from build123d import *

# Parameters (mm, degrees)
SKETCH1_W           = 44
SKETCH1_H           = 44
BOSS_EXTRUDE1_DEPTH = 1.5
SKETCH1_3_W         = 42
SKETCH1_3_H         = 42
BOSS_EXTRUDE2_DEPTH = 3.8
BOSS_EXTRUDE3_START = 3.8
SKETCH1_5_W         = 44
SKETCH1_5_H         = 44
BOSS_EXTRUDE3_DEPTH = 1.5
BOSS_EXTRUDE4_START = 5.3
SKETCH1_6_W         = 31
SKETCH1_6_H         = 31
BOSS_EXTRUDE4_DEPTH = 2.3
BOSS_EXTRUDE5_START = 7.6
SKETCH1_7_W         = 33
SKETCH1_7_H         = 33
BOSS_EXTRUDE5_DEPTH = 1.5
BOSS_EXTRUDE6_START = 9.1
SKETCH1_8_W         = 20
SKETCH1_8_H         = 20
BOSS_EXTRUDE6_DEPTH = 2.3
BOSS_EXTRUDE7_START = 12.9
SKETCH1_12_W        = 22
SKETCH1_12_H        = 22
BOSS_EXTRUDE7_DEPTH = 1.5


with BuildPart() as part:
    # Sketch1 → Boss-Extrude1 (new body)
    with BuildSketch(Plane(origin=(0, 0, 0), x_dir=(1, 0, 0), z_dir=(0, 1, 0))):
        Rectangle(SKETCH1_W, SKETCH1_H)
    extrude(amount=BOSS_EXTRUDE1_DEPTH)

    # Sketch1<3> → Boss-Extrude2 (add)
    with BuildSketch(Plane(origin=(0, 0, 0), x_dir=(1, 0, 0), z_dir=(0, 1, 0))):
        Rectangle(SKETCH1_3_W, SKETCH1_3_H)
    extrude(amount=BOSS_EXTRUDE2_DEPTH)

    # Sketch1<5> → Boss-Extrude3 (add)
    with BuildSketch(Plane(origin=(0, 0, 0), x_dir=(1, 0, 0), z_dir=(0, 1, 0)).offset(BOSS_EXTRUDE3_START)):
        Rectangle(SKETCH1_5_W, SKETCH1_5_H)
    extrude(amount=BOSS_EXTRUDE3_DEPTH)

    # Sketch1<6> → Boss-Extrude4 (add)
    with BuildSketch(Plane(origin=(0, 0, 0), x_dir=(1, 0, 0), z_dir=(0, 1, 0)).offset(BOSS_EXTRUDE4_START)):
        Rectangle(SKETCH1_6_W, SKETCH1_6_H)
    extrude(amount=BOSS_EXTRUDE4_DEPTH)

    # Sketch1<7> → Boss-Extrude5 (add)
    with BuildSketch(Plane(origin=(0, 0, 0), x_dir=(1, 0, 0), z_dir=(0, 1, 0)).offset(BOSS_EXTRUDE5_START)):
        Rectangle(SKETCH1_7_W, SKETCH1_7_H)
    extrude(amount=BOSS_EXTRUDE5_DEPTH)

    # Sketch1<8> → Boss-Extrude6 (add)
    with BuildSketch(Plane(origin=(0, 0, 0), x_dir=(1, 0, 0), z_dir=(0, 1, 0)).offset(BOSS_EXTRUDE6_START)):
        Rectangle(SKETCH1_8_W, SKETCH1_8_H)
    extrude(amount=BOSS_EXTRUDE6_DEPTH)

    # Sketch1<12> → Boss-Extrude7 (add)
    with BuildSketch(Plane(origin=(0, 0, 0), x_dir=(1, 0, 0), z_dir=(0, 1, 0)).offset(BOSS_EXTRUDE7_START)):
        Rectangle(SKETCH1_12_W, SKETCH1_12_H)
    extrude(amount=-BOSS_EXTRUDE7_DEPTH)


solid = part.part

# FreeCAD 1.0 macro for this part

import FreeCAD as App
import Part
import Sketcher

V = App.Vector

doc = App.newDocument("Part")
params = doc.addObject("Spreadsheet::Sheet", "Params")
for row, (alias, value) in enumerate([
    ("sketch1_width", "44 mm"),
    ("pad1_length", "1.5 mm"),
    ("sketch2_width", "42 mm"),
    ("pad2_length", "3.8 mm"),
    ("sketch3_width", "44 mm"),
    ("pad3_length", "1.5 mm"),
    ("sketch4_width", "31 mm"),
    ("pad4_length", "2.3 mm"),
    ("sketch5_width", "33 mm"),
    ("pad5_length", "1.5 mm"),
    ("sketch6_width", "20 mm"),
    ("pad6_length", "2.3 mm"),
    ("sketch7_width", "22 mm"),
    ("pad7_length", "1.5 mm"),
], start=1):
    params.set(f"A{row}", alias)
    params.set(f"B{row}", "=" + value)
    params.setAlias(f"B{row}", alias)

body = doc.addObject("PartDesign::Body", "Body")

# Sketch on XZ plane
sketch1 = body.newObject("Sketcher::SketchObject", "Sketch")
sketch1.AttachmentSupport = (doc.getObject("XZ_Plane"), [""])
sketch1.MapMode = "FlatFace"
sketch1.addGeometry([
    Part.LineSegment(V(-22, -22, 0), V(-22, 22, 0)),
    Part.LineSegment(V(-22, 22, 0), V(22, 22, 0)),
    Part.LineSegment(V(22, 22, 0), V(22, -22, 0)),
    Part.LineSegment(V(22, -22, 0), V(-22, -22, 0)),
], False)
sketch1.addConstraint([
    Sketcher.Constraint("Coincident", 0, 2, 1, 1),
    Sketcher.Constraint("Coincident", 1, 2, 2, 1),
    Sketcher.Constraint("Coincident", 2, 2, 3, 1),
    Sketcher.Constraint("Coincident", 3, 2, 0, 1),
    Sketcher.Constraint("Vertical", 0),
    Sketcher.Constraint("Horizontal", 1),
    Sketcher.Constraint("Vertical", 2),
    Sketcher.Constraint("Horizontal", 3),
    Sketcher.Constraint("Symmetric", 0, 2, 2, 2, -1, 1),
    Sketcher.Constraint("Equal", 3, 0),
    Sketcher.Constraint("DistanceX", 1, 1, 1, 2, 44.0),
])
sketch1.setExpression("Constraints[10]", "Params.sketch1_width")
pad1 = body.newObject("PartDesign::Pad", "Pad")
pad1.Profile = sketch1
pad1.setExpression("Length", "Params.pad1_length")
pad1.Reversed = True

# Sketch on XZ plane
sketch2 = body.newObject("Sketcher::SketchObject", "Sketch001")
sketch2.AttachmentSupport = (doc.getObject("XZ_Plane"), [""])
sketch2.MapMode = "FlatFace"
sketch2.addGeometry([
    Part.LineSegment(V(-21, -21, 0), V(-21, 21, 0)),
    Part.LineSegment(V(-21, 21, 0), V(21, 21, 0)),
    Part.LineSegment(V(21, 21, 0), V(21, -21, 0)),
    Part.LineSegment(V(21, -21, 0), V(-21, -21, 0)),
], False)
sketch2.addConstraint([
    Sketcher.Constraint("Coincident", 0, 2, 1, 1),
    Sketcher.Constraint("Coincident", 1, 2, 2, 1),
    Sketcher.Constraint("Coincident", 2, 2, 3, 1),
    Sketcher.Constraint("Coincident", 3, 2, 0, 1),
    Sketcher.Constraint("Vertical", 0),
    Sketcher.Constraint("Horizontal", 1),
    Sketcher.Constraint("Vertical", 2),
    Sketcher.Constraint("Horizontal", 3),
    Sketcher.Constraint("Symmetric", 0, 2, 2, 2, -1, 1),
    Sketcher.Constraint("Equal", 3, 0),
    Sketcher.Constraint("DistanceX", 1, 1, 1, 2, 42.0),
])
sketch2.setExpression("Constraints[10]", "Params.sketch2_width")
pad2 = body.newObject("PartDesign::Pad", "Pad001")
pad2.Profile = sketch2
pad2.setExpression("Length", "Params.pad2_length")
pad2.Reversed = True

# Sketch on XZ plane
sketch3 = body.newObject("Sketcher::SketchObject", "Sketch002")
sketch3.AttachmentSupport = (doc.getObject("XZ_Plane"), [""])
sketch3.MapMode = "FlatFace"
sketch3.AttachmentOffset = App.Placement(V(0, 0, -3.8), App.Rotation())
sketch3.addGeometry([
    Part.LineSegment(V(-22, -22, 0), V(-22, 22, 0)),
    Part.LineSegment(V(-22, 22, 0), V(22, 22, 0)),
    Part.LineSegment(V(22, 22, 0), V(22, -22, 0)),
    Part.LineSegment(V(22, -22, 0), V(-22, -22, 0)),
], False)
sketch3.addConstraint([
    Sketcher.Constraint("Coincident", 0, 2, 1, 1),
    Sketcher.Constraint("Coincident", 1, 2, 2, 1),
    Sketcher.Constraint("Coincident", 2, 2, 3, 1),
    Sketcher.Constraint("Coincident", 3, 2, 0, 1),
    Sketcher.Constraint("Vertical", 0),
    Sketcher.Constraint("Horizontal", 1),
    Sketcher.Constraint("Vertical", 2),
    Sketcher.Constraint("Horizontal", 3),
    Sketcher.Constraint("Symmetric", 0, 2, 2, 2, -1, 1),
    Sketcher.Constraint("Equal", 3, 0),
    Sketcher.Constraint("DistanceX", 1, 1, 1, 2, 44.0),
])
sketch3.setExpression("Constraints[10]", "Params.sketch3_width")
pad3 = body.newObject("PartDesign::Pad", "Pad002")
pad3.Profile = sketch3
pad3.setExpression("Length", "Params.pad3_length")
pad3.Reversed = True

# Sketch on XZ plane
sketch4 = body.newObject("Sketcher::SketchObject", "Sketch003")
sketch4.AttachmentSupport = (doc.getObject("XZ_Plane"), [""])
sketch4.MapMode = "FlatFace"
sketch4.AttachmentOffset = App.Placement(V(0, 0, -5.3), App.Rotation())
sketch4.addGeometry([
    Part.LineSegment(V(-16, -16, 0), V(-16, 16, 0)),
    Part.LineSegment(V(-16, 16, 0), V(16, 16, 0)),
    Part.LineSegment(V(16, 16, 0), V(16, -16, 0)),
    Part.LineSegment(V(16, -16, 0), V(-16, -16, 0)),
], False)
sketch4.addConstraint([
    Sketcher.Constraint("Coincident", 0, 2, 1, 1),
    Sketcher.Constraint("Coincident", 1, 2, 2, 1),
    Sketcher.Constraint("Coincident", 2, 2, 3, 1),
    Sketcher.Constraint("Coincident", 3, 2, 0, 1),
    Sketcher.Constraint("Vertical", 0),
    Sketcher.Constraint("Horizontal", 1),
    Sketcher.Constraint("Vertical", 2),
    Sketcher.Constraint("Horizontal", 3),
    Sketcher.Constraint("Symmetric", 0, 2, 2, 2, -1, 1),
    Sketcher.Constraint("Equal", 3, 0),
    Sketcher.Constraint("DistanceX", 1, 1, 1, 2, 31.0),
])
sketch4.setExpression("Constraints[10]", "Params.sketch4_width")
pad4 = body.newObject("PartDesign::Pad", "Pad003")
pad4.Profile = sketch4
pad4.setExpression("Length", "Params.pad4_length")
pad4.Reversed = True

# Sketch on XZ plane
sketch5 = body.newObject("Sketcher::SketchObject", "Sketch004")
sketch5.AttachmentSupport = (doc.getObject("XZ_Plane"), [""])
sketch5.MapMode = "FlatFace"
sketch5.AttachmentOffset = App.Placement(V(0, 0, -7.6), App.Rotation())
sketch5.addGeometry([
    Part.LineSegment(V(-16, -16, 0), V(-16, 16, 0)),
    Part.LineSegment(V(-16, 16, 0), V(16, 16, 0)),
    Part.LineSegment(V(16, 16, 0), V(16, -16, 0)),
    Part.LineSegment(V(16, -16, 0), V(-16, -16, 0)),
], False)
sketch5.addConstraint([
    Sketcher.Constraint("Coincident", 0, 2, 1, 1),
    Sketcher.Constraint("Coincident", 1, 2, 2, 1),
    Sketcher.Constraint("Coincident", 2, 2, 3, 1),
    Sketcher.Constraint("Coincident", 3, 2, 0, 1),
    Sketcher.Constraint("Vertical", 0),
    Sketcher.Constraint("Horizontal", 1),
    Sketcher.Constraint("Vertical", 2),
    Sketcher.Constraint("Horizontal", 3),
    Sketcher.Constraint("Symmetric", 0, 2, 2, 2, -1, 1),
    Sketcher.Constraint("Equal", 3, 0),
    Sketcher.Constraint("DistanceX", 1, 1, 1, 2, 33.0),
])
sketch5.setExpression("Constraints[10]", "Params.sketch5_width")
pad5 = body.newObject("PartDesign::Pad", "Pad004")
pad5.Profile = sketch5
pad5.setExpression("Length", "Params.pad5_length")
pad5.Reversed = True

# Sketch on XZ plane
sketch6 = body.newObject("Sketcher::SketchObject", "Sketch005")
sketch6.AttachmentSupport = (doc.getObject("XZ_Plane"), [""])
sketch6.MapMode = "FlatFace"
sketch6.AttachmentOffset = App.Placement(V(0, 0, -9.1), App.Rotation())
sketch6.addGeometry([
    Part.LineSegment(V(-10, -10, 0), V(-10, 10, 0)),
    Part.LineSegment(V(-10, 10, 0), V(10, 10, 0)),
    Part.LineSegment(V(10, 10, 0), V(10, -10, 0)),
    Part.LineSegment(V(10, -10, 0), V(-10, -10, 0)),
], False)
sketch6.addConstraint([
    Sketcher.Constraint("Coincident", 0, 2, 1, 1),
    Sketcher.Constraint("Coincident", 1, 2, 2, 1),
    Sketcher.Constraint("Coincident", 2, 2, 3, 1),
    Sketcher.Constraint("Coincident", 3, 2, 0, 1),
    Sketcher.Constraint("Vertical", 0),
    Sketcher.Constraint("Horizontal", 1),
    Sketcher.Constraint("Vertical", 2),
    Sketcher.Constraint("Horizontal", 3),
    Sketcher.Constraint("Symmetric", 0, 2, 2, 2, -1, 1),
    Sketcher.Constraint("Equal", 3, 0),
    Sketcher.Constraint("DistanceX", 1, 1, 1, 2, 20.0),
])
sketch6.setExpression("Constraints[10]", "Params.sketch6_width")
pad6 = body.newObject("PartDesign::Pad", "Pad005")
pad6.Profile = sketch6
pad6.setExpression("Length", "Params.pad6_length")
pad6.Reversed = True

# Sketch on XZ plane
sketch7 = body.newObject("Sketcher::SketchObject", "Sketch006")
sketch7.AttachmentSupport = (doc.getObject("XZ_Plane"), [""])
sketch7.MapMode = "FlatFace"
sketch7.AttachmentOffset = App.Placement(V(0, 0, -12.9), App.Rotation())
sketch7.addGeometry([
    Part.LineSegment(V(-11, -11, 0), V(-11, 11, 0)),
    Part.LineSegment(V(-11, 11, 0), V(11, 11, 0)),
    Part.LineSegment(V(11, 11, 0), V(11, -11, 0)),
    Part.LineSegment(V(11, -11, 0), V(-11, -11, 0)),
], False)
sketch7.addConstraint([
    Sketcher.Constraint("Coincident", 0, 2, 1, 1),
    Sketcher.Constraint("Coincident", 1, 2, 2, 1),
    Sketcher.Constraint("Coincident", 2, 2, 3, 1),
    Sketcher.Constraint("Coincident", 3, 2, 0, 1),
    Sketcher.Constraint("Vertical", 0),
    Sketcher.Constraint("Horizontal", 1),
    Sketcher.Constraint("Vertical", 2),
    Sketcher.Constraint("Horizontal", 3),
    Sketcher.Constraint("Symmetric", 0, 2, 2, 2, -1, 1),
    Sketcher.Constraint("Equal", 3, 0),
    Sketcher.Constraint("DistanceX", 1, 1, 1, 2, 22.0),
])
sketch7.setExpression("Constraints[10]", "Params.sketch7_width")
pad7 = body.newObject("PartDesign::Pad", "Pad006")
pad7.Profile = sketch7
pad7.setExpression("Length", "Params.pad7_length")

doc.recompute()
